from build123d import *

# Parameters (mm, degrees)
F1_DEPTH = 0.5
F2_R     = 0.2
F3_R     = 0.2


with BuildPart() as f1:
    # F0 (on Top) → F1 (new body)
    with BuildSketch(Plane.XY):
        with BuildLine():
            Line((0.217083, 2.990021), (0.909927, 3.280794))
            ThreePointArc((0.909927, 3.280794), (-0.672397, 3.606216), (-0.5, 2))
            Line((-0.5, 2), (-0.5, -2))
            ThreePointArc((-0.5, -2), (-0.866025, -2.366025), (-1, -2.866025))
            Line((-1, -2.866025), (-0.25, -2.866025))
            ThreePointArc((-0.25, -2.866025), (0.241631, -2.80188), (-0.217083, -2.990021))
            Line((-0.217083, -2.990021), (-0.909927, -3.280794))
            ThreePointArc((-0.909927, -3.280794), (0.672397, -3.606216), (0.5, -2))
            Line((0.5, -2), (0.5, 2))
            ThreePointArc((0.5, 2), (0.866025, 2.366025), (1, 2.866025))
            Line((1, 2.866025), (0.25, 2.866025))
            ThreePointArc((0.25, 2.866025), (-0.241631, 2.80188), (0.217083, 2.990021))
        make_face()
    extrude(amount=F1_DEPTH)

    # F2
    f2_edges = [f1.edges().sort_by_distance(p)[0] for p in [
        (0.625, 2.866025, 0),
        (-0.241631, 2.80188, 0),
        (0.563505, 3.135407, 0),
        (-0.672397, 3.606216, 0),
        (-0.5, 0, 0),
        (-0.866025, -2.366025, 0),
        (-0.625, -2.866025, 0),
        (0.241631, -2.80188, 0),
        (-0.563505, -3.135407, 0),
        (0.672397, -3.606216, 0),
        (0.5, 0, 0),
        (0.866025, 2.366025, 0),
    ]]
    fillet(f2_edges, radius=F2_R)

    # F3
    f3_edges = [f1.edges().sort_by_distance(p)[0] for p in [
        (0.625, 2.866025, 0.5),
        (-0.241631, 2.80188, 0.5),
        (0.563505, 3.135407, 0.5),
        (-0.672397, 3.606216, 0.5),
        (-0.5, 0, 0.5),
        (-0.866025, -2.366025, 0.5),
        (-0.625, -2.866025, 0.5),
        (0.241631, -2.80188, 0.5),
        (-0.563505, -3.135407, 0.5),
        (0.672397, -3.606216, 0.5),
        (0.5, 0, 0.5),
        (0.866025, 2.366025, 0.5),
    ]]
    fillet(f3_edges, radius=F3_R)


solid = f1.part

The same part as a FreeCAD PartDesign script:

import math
import FreeCAD as App
import Part
import Sketcher
from FreeCAD import Vector
Q = App.Units.Quantity


def edges_at(feature, points):
    """Names of the edges that pass closest to the given points."""
    edges = feature.Shape.Edges
    near = lambda p: min(range(len(edges)), key=lambda i: edges[i].distToShape(Part.Vertex(*p))[0])
    return sorted({f"Edge{near(p) + 1}" for p in points})

doc = App.newDocument("Part")
body = doc.addObject("PartDesign::Body", "Body")

# Sketch on XY plane
sketch1 = body.newObject("Sketcher::SketchObject", "Sketch")
sketch1.AttachmentSupport = (doc.getObject("XY_Plane"), [""])
sketch1.MapMode = "FlatFace"
sketch1.addGeometry([
    Part.LineSegment(Vector(0.22, 2.99, 0), Vector(0.91, 3.28, 0)),  # 0
    Part.ArcOfCircle(Part.Circle(Vector(0, 2.87, 0), Vector(0, 0, 1), 1), math.radians(25), math.radians(240)),  # 1
    Part.LineSegment(Vector(-0.5, 2, 0), Vector(-0.5, -2, 0)),  # 2
    Part.ArcOfCircle(Part.Circle(Vector(0, -2.87, 0), Vector(0, 0, 1), 1), math.radians(120), math.radians(180)),  # 3
    Part.LineSegment(Vector(-1, -2.87, 0), Vector(-0.25, -2.87, 0)),  # 4
    Part.ArcOfCircle(Part.Circle(Vector(0, -2.87, 0), Vector(0, 0, 1), 0.25), math.radians(-150), math.radians(180)),  # 5
    Part.LineSegment(Vector(-0.22, -2.99, 0), Vector(-0.91, -3.28, 0)),  # 6
    Part.ArcOfCircle(Part.Circle(Vector(0, -2.87, 0), Vector(0, 0, 1), 1), math.radians(-155), math.radians(60)),  # 7
    Part.LineSegment(Vector(0.5, -2, 0), Vector(0.5, 2, 0)),  # 8
    Part.ArcOfCircle(Part.Circle(Vector(0, 2.87, 0), Vector(0, 0, 1), 1), math.radians(-60), math.radians(0)),  # 9
    Part.LineSegment(Vector(1, 2.87, 0), Vector(0.25, 2.87, 0)),  # 10
    Part.ArcOfCircle(Part.Circle(Vector(0, 2.87, 0), Vector(0, 0, 1), 0.25), math.radians(30), math.radians(360)),  # 11
], False)
sketch1.addConstraint([
    Sketcher.Constraint("Coincident", 0, 2, 1, 1),
    Sketcher.Constraint("Coincident", 1, 2, 2, 1),
    Sketcher.Constraint("Coincident", 2, 2, 3, 1),
    Sketcher.Constraint("Coincident", 3, 2, 4, 1),
    Sketcher.Constraint("Coincident", 4, 2, 5, 2),
    Sketcher.Constraint("Coincident", 5, 1, 6, 1),
    Sketcher.Constraint("Coincident", 6, 2, 7, 1),
    Sketcher.Constraint("Coincident", 7, 2, 8, 1),
    Sketcher.Constraint("Coincident", 8, 2, 9, 1),
    Sketcher.Constraint("Coincident", 9, 2, 10, 1),
    Sketcher.Constraint("Coincident", 10, 2, 11, 2),
    Sketcher.Constraint("Coincident", 11, 1, 0, 1),
    Sketcher.Constraint("Vertical", 2),
    Sketcher.Constraint("Horizontal", 4),
    Sketcher.Constraint("Vertical", 8),
    Sketcher.Constraint("Horizontal", 10),
    Sketcher.Constraint("Coincident", 5, 3, 3, 3),
    Sketcher.Constraint("Coincident", 7, 3, 3, 3),
    Sketcher.Constraint("Coincident", 9, 3, 1, 3),
    Sketcher.Constraint("Coincident", 11, 3, 1, 3),
    Sketcher.Constraint("Equal", 1, 3),
    Sketcher.Constraint("Equal", 3, 7),
    Sketcher.Constraint("Equal", 7, 9),
    Sketcher.Constraint("Equal", 5, 11),
    Sketcher.Constraint("Symmetric", 1, 3, 3, 3, -1, 1),
    Sketcher.Constraint("Symmetric", 2, 2, 7, 2, -2),
    Sketcher.Constraint("Parallel", 0, 6),
    Sketcher.Constraint("Horizontal", 7, 3, 3, 2),
    Sketcher.Constraint("Horizontal", 11, 3, 9, 2),
    Sketcher.Constraint("Equal", 0, 6),
    Sketcher.Constraint("Radius", 1, Q("1 mm")),
    Sketcher.Constraint("DistanceY", 2, 2, 2, 1, Q("4 mm")),
    Sketcher.Constraint("Radius", 5, Q("0.25 mm")),
    Sketcher.Constraint("DistanceX", 2, 2, 7, 2, Q("1 mm")),
    Sketcher.Constraint("DistanceY", 5, 1, -1, 1, Q("2.990021 mm")),
    Sketcher.Constraint("DistanceY", 1, 3, 0, 2, Q("0.414769 mm")),
])
pad1 = body.newObject("PartDesign::Pad", "Pad")
pad1.Profile = sketch1
pad1.Length = 0.5
doc.recompute()

fillet = body.newObject("PartDesign::Fillet", "Fillet")
fillet.Base = (pad1, edges_at(pad1, [
    (0.625, 2.866, 0),
    (-0.242, 2.802, 0),
    (0.564, 3.135, 0),
    (-0.672, 3.606, 0),
    (-0.5, 0, 0),
    (-0.866, -2.366, 0),
    (-0.625, -2.866, 0),
    (0.242, -2.802, 0),
    (-0.564, -3.135, 0),
    (0.672, -3.606, 0),
    (0.5, 0, 0),
    (0.866, 2.366, 0),
]))
fillet.Radius = 0.2
doc.recompute()

fillet2 = body.newObject("PartDesign::Fillet", "Fillet001")
fillet2.Base = (fillet, edges_at(fillet, [
    (0.625, 2.866, 0.5),
    (-0.242, 2.802, 0.5),
    (0.564, 3.135, 0.5),
    (-0.672, 3.606, 0.5),
    (-0.5, 0, 0.5),
    (-0.866, -2.366, 0.5),
    (-0.625, -2.866, 0.5),
    (0.242, -2.802, 0.5),
    (-0.564, -3.135, 0.5),
    (0.672, -3.606, 0.5),
    (0.5, 0, 0.5),
    (0.866, 2.366, 0.5),
]))
fillet2.Radius = 0.2

doc.recompute()
